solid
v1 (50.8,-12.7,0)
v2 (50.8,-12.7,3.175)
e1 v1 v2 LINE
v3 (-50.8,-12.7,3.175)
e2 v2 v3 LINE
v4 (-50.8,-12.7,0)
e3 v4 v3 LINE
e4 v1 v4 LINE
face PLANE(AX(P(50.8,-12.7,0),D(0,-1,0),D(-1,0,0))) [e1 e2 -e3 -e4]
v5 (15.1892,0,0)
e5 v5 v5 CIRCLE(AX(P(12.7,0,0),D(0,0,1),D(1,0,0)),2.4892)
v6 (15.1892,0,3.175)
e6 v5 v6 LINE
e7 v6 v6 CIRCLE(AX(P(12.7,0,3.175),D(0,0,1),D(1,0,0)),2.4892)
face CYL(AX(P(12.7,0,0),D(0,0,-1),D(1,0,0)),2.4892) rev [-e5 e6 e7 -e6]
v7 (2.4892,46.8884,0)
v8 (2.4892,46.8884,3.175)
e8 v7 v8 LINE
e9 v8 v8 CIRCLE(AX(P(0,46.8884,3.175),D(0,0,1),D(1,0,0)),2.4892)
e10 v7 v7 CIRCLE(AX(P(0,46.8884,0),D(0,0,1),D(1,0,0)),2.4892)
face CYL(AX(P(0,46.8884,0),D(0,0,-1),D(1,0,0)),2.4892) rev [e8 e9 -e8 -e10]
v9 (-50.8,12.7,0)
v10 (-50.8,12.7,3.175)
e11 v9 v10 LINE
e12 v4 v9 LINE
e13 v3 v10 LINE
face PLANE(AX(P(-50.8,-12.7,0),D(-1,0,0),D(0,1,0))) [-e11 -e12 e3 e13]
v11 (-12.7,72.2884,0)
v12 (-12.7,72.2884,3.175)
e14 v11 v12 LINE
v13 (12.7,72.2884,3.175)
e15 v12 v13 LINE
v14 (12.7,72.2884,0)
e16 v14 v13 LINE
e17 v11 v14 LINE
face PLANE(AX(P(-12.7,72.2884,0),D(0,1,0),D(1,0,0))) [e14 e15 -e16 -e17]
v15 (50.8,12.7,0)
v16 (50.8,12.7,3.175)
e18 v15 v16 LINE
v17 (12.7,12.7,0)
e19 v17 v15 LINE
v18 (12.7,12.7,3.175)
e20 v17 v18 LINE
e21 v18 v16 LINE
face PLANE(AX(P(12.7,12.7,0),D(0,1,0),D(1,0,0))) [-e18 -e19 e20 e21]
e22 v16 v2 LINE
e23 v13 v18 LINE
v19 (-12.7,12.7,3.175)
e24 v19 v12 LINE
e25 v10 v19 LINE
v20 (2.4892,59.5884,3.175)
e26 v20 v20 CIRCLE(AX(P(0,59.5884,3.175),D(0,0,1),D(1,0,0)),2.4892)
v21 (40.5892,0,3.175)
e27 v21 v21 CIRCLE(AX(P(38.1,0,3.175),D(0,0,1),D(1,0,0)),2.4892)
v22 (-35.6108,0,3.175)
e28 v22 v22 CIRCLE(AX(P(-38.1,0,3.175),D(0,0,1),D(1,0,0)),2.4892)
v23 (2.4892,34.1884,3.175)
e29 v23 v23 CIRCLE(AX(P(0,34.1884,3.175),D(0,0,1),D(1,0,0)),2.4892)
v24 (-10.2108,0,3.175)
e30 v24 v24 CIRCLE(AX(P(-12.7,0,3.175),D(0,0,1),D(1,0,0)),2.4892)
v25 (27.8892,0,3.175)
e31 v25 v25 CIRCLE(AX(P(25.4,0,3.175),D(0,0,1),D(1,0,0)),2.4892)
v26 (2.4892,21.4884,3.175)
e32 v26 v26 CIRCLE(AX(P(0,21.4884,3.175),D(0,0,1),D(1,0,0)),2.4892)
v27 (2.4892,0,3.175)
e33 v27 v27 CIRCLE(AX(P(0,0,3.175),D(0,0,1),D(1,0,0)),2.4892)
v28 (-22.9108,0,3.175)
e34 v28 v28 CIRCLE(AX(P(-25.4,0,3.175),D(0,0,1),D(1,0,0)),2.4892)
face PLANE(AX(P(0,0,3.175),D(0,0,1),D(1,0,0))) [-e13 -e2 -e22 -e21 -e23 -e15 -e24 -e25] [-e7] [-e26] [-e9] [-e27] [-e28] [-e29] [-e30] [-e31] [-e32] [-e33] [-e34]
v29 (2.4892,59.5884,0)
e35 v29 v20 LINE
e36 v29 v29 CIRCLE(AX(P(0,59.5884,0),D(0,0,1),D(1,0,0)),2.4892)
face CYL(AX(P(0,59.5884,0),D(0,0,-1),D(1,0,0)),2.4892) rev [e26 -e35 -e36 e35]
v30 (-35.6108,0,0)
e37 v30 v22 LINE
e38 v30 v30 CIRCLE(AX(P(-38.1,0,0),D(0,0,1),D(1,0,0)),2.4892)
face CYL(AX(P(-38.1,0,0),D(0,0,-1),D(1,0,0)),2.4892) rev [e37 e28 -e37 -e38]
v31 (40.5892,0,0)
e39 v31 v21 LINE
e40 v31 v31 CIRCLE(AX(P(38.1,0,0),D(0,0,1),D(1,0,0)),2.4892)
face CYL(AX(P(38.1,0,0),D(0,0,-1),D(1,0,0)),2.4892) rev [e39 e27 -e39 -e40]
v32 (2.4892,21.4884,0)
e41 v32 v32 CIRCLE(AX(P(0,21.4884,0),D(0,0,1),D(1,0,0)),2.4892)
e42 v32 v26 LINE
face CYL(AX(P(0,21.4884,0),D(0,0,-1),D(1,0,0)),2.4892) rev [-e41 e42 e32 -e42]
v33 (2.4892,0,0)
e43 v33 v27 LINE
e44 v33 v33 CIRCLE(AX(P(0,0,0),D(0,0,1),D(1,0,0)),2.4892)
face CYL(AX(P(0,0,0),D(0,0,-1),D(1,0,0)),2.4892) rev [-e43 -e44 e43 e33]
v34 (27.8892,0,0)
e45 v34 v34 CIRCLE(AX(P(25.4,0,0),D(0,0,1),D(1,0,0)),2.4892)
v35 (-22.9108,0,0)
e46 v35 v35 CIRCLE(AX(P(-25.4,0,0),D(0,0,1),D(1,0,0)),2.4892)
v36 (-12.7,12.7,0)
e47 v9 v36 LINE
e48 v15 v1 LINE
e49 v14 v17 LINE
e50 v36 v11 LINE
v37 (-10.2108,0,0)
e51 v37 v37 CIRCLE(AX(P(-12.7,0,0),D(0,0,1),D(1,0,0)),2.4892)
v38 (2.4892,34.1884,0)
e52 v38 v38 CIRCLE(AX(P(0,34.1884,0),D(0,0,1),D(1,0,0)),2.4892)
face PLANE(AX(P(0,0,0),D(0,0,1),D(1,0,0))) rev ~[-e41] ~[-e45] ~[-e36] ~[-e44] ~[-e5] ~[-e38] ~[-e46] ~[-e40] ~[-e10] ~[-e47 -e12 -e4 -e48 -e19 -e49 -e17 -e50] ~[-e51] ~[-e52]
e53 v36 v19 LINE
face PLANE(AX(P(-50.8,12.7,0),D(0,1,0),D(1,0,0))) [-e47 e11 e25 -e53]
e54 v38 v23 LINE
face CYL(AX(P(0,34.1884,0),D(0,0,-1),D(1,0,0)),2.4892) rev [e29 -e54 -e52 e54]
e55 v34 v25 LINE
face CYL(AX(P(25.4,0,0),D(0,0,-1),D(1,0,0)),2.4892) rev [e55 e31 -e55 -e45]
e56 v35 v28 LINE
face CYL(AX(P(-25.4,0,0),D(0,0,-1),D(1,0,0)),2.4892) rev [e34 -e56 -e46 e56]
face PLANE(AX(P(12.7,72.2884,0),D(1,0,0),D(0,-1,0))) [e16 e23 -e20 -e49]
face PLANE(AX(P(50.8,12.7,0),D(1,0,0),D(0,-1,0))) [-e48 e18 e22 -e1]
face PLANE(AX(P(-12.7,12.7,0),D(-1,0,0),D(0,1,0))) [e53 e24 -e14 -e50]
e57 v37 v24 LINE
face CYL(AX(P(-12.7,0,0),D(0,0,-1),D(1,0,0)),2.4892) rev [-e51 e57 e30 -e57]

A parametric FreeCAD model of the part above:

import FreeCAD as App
import Part
import Sketcher
from FreeCAD import Vector
Q = App.Units.Quantity

doc = App.newDocument("Part")
body = doc.addObject("PartDesign::Body", "Body")

sketch1 = body.newObject("Sketcher::SketchObject", "Sketch")
sketch1.AttachmentSupport = (doc.getObject("XY_Plane"), [""])
sketch1.MapMode = "FlatFace"
sketch1.addGeometry(Part.LineSegment(Vector(50.8, -12.7, 0), Vector(50.8, 12.7, 0)), False)
sketch1.addGeometry(Part.LineSegment(Vector(50.8, 12.7, 0), Vector(12.7, 12.7, 0)), False)
sketch1.addGeometry(Part.LineSegment(Vector(12.7, 12.7, 0), Vector(12.7, 72.3, 0)), False)
sketch1.addGeometry(Part.LineSegment(Vector(12.7, 72.3, 0), Vector(-12.7, 72.3, 0)), False)
sketch1.addGeometry(Part.LineSegment(Vector(-12.7, 72.3, 0), Vector(-12.7, 12.7, 0)), False)
sketch1.addGeometry(Part.LineSegment(Vector(-12.7, 12.7, 0), Vector(-50.8, 12.7, 0)), False)
sketch1.addGeometry(Part.LineSegment(Vector(-50.8, 12.7, 0), Vector(-50.8, -12.7, 0)), False)
sketch1.addGeometry(Part.LineSegment(Vector(-50.8, -12.7, 0), Vector(50.8, -12.7, 0)), False)
sketch1.addGeometry(Part.Circle(Vector(-38.1, 0, 0), Vector(0, 0, 1), 2.5), False)
sketch1.addGeometry(Part.Circle(Vector(-25.4, 0, 0), Vector(0, 0, 1), 2.5), False)
sketch1.addGeometry(Part.Circle(Vector(-12.7, 0, 0), Vector(0, 0, 1), 2.5), False)
sketch1.addGeometry(Part.Circle(Vector(0, 0, 0), Vector(0, 0, 1), 2.5), False)
sketch1.addGeometry(Part.Circle(Vector(0, 21.5, 0), Vector(0, 0, 1), 2.5), False)
sketch1.addGeometry(Part.Circle(Vector(12.7, 0, 0), Vector(0, 0, 1), 2.5), False)
sketch1.addGeometry(Part.Circle(Vector(25.4, 0, 0), Vector(0, 0, 1), 2.5), False)
sketch1.addGeometry(Part.Circle(Vector(38.1, 0, 0), Vector(0, 0, 1), 2.5), False)
sketch1.addGeometry(Part.Circle(Vector(0, 34.2, 0), Vector(0, 0, 1), 2.5), False)
sketch1.addGeometry(Part.Circle(Vector(0, 46.9, 0), Vector(0, 0, 1), 2.5), False)
sketch1.addGeometry(Part.Circle(Vector(0, 59.6, 0), Vector(0, 0, 1), 2.5), False)
sketch1.addConstraint(Sketcher.Constraint("Coincident", 0, 2, 1, 1))
sketch1.addConstraint(Sketcher.Constraint("Coincident", 1, 2, 2, 1))
sketch1.addConstraint(Sketcher.Constraint("Coincident", 2, 2, 3, 1))
sketch1.addConstraint(Sketcher.Constraint("Coincident", 3, 2, 4, 1))
sketch1.addConstraint(Sketcher.Constraint("Coincident", 4, 2, 5, 1))
sketch1.addConstraint(Sketcher.Constraint("Coincident", 5, 2, 6, 1))
sketch1.addConstraint(Sketcher.Constraint("Coincident", 6, 2, 7, 1))
sketch1.addConstraint(Sketcher.Constraint("Coincident", 7, 2, 0, 1))
sketch1.addConstraint(Sketcher.Constraint("Vertical", 0))
sketch1.addConstraint(Sketcher.Constraint("Horizontal", 1))
sketch1.addConstraint(Sketcher.Constraint("Vertical", 2))
sketch1.addConstraint(Sketcher.Constraint("Horizontal", 3))
sketch1.addConstraint(Sketcher.Constraint("Vertical", 4))
sketch1.addConstraint(Sketcher.Constraint("Horizontal", 5))
sketch1.addConstraint(Sketcher.Constraint("Vertical", 6))
sketch1.addConstraint(Sketcher.Constraint("Horizontal", 7))
sketch1.addConstraint(Sketcher.Constraint("Coincident", 11, 3, -1, 1))
sketch1.addConstraint(Sketcher.Constraint("Equal", 8, 9))
sketch1.addConstraint(Sketcher.Constraint("Equal", 9, 10))
sketch1.addConstraint(Sketcher.Constraint("Equal", 10, 11))
sketch1.addConstraint(Sketcher.Constraint("Equal", 11, 12))
sketch1.addConstraint(Sketcher.Constraint("Equal", 12, 13))
sketch1.addConstraint(Sketcher.Constraint("Equal", 13, 14))
sketch1.addConstraint(Sketcher.Constraint("Equal", 14, 15))
sketch1.addConstraint(Sketcher.Constraint("Equal", 15, 16))
sketch1.addConstraint(Sketcher.Constraint("Equal", 16, 17))
sketch1.addConstraint(Sketcher.Constraint("Equal", 17, 18))
sketch1.addConstraint(Sketcher.Constraint("Symmetric", 10, 3, 13, 3, -1, 1))
sketch1.addConstraint(Sketcher.Constraint("Symmetric", 9, 3, 14, 3, -1, 1))
sketch1.addConstraint(Sketcher.Constraint("Symmetric", 8, 3, 15, 3, -1, 1))
sketch1.addConstraint(Sketcher.Constraint("Symmetric", 0, 2, 6, 2, -1, 1))
sketch1.addConstraint(Sketcher.Constraint("Symmetric", 1, 2, 4, 2, -2))
sketch1.addConstraint(Sketcher.Constraint("PointOnObject", 8, 3, -1))
sketch1.addConstraint(Sketcher.Constraint("PointOnObject", 9, 3, -1))
sketch1.addConstraint(Sketcher.Constraint("PointOnObject", 10, 3, -1))
sketch1.addConstraint(Sketcher.Constraint("PointOnObject", 12, 3, -2))
sketch1.addConstraint(Sketcher.Constraint("PointOnObject", 16, 3, -2))
sketch1.addConstraint(Sketcher.Constraint("PointOnObject", 17, 3, -2))
sketch1.addConstraint(Sketcher.Constraint("PointOnObject", 18, 3, -2))
sketch1.addConstraint(Sketcher.Constraint("Vertical", 13, 3, 1, 2))
sketch1.addConstraint(Sketcher.Constraint("Equal", 3, 0))
sketch1.addConstraint(Sketcher.Constraint("DistanceX", 3, 2, 3, 1, Q("1 in")))
sketch1.addConstraint(Sketcher.Constraint("Diameter", 8, Q("0.196 in")))
sketch1.addConstraint(Sketcher.Constraint("DistanceX", 9, 3, -1, 1, Q("1 in")))
sketch1.addConstraint(Sketcher.Constraint("DistanceX", 8, 3, 10, 3, Q("1 in")))
sketch1.addConstraint(Sketcher.Constraint("DistanceY", 12, 3, 17, 3, Q("1 in")))
sketch1.addConstraint(Sketcher.Constraint("DistanceY", 16, 3, 18, 3, Q("1 in")))
sketch1.addConstraint(Sketcher.Constraint("DistanceX", 14, 3, 0, 2, Q("1 in")))
sketch1.addConstraint(Sketcher.Constraint("DistanceY", 17, 3, 2, 2, Q("1 in")))
sketch1.addConstraint(Sketcher.Constraint("DistanceY", 12, 3, 16, 3, Q("0.5 in")))
sketch1.addConstraint(Sketcher.Constraint("DistanceY", -1, 1, 12, 3, Q("0.846 in")))
pad1 = body.newObject("PartDesign::Pad", "Pad")
pad1.Profile = sketch1
pad1.Length = Q("0.125 in")

doc.recompute()
